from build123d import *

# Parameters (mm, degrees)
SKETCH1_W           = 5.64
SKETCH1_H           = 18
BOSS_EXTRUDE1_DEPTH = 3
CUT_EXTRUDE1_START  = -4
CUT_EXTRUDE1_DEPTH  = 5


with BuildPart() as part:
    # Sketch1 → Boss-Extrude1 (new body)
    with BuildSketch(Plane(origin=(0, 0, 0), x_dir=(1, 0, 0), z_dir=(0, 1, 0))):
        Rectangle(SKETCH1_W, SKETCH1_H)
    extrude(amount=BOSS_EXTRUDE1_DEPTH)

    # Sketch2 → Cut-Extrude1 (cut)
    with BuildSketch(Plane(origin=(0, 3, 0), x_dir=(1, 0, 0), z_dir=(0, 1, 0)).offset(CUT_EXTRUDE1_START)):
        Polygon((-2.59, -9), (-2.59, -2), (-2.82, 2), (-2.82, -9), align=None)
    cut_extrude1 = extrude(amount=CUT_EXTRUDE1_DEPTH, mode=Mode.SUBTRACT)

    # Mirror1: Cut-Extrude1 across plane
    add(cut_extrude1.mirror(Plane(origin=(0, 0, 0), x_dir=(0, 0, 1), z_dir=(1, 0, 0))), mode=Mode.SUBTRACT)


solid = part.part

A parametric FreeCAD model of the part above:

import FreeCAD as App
import Part
import Sketcher
from FreeCAD import Vector

doc = App.newDocument("Part")
body = doc.addObject("PartDesign::Body", "Body")

# Sketch on XZ plane
sketch1 = body.newObject("Sketcher::SketchObject", "Sketch")
sketch1.AttachmentSupport = (doc.getObject("XZ_Plane"), [""])
sketch1.MapMode = "FlatFace"
sketch1.addGeometry([
    Part.LineSegment(Vector(-3, -9, 0), Vector(-3, 9, 0)),
    Part.LineSegment(Vector(-3, 9, 0), Vector(3, 9, 0)),
    Part.LineSegment(Vector(3, 9, 0), Vector(3, -9, 0)),
    Part.LineSegment(Vector(3, -9, 0), Vector(-3, -9, 0)),
], False)
sketch1.addConstraint([
    Sketcher.Constraint("Coincident", 0, 2, 1, 1),
    Sketcher.Constraint("Coincident", 1, 2, 2, 1),
    Sketcher.Constraint("Coincident", 2, 2, 3, 1),
    Sketcher.Constraint("Coincident", 3, 2, 0, 1),
    Sketcher.Constraint("Vertical", 0),
    Sketcher.Constraint("Horizontal", 1),
    Sketcher.Constraint("Vertical", 2),
    Sketcher.Constraint("Horizontal", 3),
    Sketcher.Constraint("Symmetric", 0, 2, 2, 2, -1, 1),
    Sketcher.Constraint("DistanceY", 0, 1, 0, 2, 18.0),
    Sketcher.Constraint("DistanceX", 1, 1, 1, 2, 5.64),
])
pad1 = body.newObject("PartDesign::Pad", "Pad")
pad1.Profile = sketch1
pad1.Length = 3
pad1.Reversed = True

# Sketch on XZ plane
sketch2 = body.newObject("Sketcher::SketchObject", "Sketch001")
sketch2.AttachmentSupport = (doc.getObject("XZ_Plane"), [""])
sketch2.MapMode = "FlatFace"
sketch2.AttachmentOffset = App.Placement(Vector(0, 0, 1), App.Rotation())
sketch2.addGeometry([
    Part.LineSegment(Vector(-2.59, 9, 0), Vector(-2.59, 2, 0)),
    Part.LineSegment(Vector(-2.59, 2, 0), Vector(-2.82, -2, 0)),
    Part.LineSegment(Vector(-2.82, -2, 0), Vector(-2.82, 9, 0)),
    Part.LineSegment(Vector(-2.82, 9, 0), Vector(-2.59, 9, 0)),
], False)
sketch2.addConstraint([
    Sketcher.Constraint("Coincident", 0, 2, 1, 1),
    Sketcher.Constraint("Coincident", 1, 2, 2, 1),
    Sketcher.Constraint("Coincident", 2, 2, 3, 1),
    Sketcher.Constraint("Coincident", 3, 2, 0, 1),
    Sketcher.Constraint("Vertical", 0),
    Sketcher.Constraint("Vertical", 2),
    Sketcher.Constraint("Horizontal", 3),
    Sketcher.Constraint("DistanceY", 0, 2, 0, 1, 7.0),
    Sketcher.Constraint("DistanceY", 2, 1, 2, 2, 11.0),
    Sketcher.Constraint("DistanceY", -1, 1, 0, 2, 2.0),
    Sketcher.Constraint("DistanceX", 3, 1, 3, 2, 0.23),
    Sketcher.Constraint("DistanceX", 0, 2, -1, 1, 2.59),
])
pocket1 = body.newObject("PartDesign::Pocket", "Pocket")
pocket1.Profile = sketch2
pocket1.Length = 5
doc.recompute()

mirrored = body.newObject("PartDesign::Mirrored", "Mirrored")
mirrored.Originals = [pocket1]
mirrored.MirrorPlane = (doc.getObject("YZ_Plane"), [""])
body.Tip = mirrored

doc.recompute()
